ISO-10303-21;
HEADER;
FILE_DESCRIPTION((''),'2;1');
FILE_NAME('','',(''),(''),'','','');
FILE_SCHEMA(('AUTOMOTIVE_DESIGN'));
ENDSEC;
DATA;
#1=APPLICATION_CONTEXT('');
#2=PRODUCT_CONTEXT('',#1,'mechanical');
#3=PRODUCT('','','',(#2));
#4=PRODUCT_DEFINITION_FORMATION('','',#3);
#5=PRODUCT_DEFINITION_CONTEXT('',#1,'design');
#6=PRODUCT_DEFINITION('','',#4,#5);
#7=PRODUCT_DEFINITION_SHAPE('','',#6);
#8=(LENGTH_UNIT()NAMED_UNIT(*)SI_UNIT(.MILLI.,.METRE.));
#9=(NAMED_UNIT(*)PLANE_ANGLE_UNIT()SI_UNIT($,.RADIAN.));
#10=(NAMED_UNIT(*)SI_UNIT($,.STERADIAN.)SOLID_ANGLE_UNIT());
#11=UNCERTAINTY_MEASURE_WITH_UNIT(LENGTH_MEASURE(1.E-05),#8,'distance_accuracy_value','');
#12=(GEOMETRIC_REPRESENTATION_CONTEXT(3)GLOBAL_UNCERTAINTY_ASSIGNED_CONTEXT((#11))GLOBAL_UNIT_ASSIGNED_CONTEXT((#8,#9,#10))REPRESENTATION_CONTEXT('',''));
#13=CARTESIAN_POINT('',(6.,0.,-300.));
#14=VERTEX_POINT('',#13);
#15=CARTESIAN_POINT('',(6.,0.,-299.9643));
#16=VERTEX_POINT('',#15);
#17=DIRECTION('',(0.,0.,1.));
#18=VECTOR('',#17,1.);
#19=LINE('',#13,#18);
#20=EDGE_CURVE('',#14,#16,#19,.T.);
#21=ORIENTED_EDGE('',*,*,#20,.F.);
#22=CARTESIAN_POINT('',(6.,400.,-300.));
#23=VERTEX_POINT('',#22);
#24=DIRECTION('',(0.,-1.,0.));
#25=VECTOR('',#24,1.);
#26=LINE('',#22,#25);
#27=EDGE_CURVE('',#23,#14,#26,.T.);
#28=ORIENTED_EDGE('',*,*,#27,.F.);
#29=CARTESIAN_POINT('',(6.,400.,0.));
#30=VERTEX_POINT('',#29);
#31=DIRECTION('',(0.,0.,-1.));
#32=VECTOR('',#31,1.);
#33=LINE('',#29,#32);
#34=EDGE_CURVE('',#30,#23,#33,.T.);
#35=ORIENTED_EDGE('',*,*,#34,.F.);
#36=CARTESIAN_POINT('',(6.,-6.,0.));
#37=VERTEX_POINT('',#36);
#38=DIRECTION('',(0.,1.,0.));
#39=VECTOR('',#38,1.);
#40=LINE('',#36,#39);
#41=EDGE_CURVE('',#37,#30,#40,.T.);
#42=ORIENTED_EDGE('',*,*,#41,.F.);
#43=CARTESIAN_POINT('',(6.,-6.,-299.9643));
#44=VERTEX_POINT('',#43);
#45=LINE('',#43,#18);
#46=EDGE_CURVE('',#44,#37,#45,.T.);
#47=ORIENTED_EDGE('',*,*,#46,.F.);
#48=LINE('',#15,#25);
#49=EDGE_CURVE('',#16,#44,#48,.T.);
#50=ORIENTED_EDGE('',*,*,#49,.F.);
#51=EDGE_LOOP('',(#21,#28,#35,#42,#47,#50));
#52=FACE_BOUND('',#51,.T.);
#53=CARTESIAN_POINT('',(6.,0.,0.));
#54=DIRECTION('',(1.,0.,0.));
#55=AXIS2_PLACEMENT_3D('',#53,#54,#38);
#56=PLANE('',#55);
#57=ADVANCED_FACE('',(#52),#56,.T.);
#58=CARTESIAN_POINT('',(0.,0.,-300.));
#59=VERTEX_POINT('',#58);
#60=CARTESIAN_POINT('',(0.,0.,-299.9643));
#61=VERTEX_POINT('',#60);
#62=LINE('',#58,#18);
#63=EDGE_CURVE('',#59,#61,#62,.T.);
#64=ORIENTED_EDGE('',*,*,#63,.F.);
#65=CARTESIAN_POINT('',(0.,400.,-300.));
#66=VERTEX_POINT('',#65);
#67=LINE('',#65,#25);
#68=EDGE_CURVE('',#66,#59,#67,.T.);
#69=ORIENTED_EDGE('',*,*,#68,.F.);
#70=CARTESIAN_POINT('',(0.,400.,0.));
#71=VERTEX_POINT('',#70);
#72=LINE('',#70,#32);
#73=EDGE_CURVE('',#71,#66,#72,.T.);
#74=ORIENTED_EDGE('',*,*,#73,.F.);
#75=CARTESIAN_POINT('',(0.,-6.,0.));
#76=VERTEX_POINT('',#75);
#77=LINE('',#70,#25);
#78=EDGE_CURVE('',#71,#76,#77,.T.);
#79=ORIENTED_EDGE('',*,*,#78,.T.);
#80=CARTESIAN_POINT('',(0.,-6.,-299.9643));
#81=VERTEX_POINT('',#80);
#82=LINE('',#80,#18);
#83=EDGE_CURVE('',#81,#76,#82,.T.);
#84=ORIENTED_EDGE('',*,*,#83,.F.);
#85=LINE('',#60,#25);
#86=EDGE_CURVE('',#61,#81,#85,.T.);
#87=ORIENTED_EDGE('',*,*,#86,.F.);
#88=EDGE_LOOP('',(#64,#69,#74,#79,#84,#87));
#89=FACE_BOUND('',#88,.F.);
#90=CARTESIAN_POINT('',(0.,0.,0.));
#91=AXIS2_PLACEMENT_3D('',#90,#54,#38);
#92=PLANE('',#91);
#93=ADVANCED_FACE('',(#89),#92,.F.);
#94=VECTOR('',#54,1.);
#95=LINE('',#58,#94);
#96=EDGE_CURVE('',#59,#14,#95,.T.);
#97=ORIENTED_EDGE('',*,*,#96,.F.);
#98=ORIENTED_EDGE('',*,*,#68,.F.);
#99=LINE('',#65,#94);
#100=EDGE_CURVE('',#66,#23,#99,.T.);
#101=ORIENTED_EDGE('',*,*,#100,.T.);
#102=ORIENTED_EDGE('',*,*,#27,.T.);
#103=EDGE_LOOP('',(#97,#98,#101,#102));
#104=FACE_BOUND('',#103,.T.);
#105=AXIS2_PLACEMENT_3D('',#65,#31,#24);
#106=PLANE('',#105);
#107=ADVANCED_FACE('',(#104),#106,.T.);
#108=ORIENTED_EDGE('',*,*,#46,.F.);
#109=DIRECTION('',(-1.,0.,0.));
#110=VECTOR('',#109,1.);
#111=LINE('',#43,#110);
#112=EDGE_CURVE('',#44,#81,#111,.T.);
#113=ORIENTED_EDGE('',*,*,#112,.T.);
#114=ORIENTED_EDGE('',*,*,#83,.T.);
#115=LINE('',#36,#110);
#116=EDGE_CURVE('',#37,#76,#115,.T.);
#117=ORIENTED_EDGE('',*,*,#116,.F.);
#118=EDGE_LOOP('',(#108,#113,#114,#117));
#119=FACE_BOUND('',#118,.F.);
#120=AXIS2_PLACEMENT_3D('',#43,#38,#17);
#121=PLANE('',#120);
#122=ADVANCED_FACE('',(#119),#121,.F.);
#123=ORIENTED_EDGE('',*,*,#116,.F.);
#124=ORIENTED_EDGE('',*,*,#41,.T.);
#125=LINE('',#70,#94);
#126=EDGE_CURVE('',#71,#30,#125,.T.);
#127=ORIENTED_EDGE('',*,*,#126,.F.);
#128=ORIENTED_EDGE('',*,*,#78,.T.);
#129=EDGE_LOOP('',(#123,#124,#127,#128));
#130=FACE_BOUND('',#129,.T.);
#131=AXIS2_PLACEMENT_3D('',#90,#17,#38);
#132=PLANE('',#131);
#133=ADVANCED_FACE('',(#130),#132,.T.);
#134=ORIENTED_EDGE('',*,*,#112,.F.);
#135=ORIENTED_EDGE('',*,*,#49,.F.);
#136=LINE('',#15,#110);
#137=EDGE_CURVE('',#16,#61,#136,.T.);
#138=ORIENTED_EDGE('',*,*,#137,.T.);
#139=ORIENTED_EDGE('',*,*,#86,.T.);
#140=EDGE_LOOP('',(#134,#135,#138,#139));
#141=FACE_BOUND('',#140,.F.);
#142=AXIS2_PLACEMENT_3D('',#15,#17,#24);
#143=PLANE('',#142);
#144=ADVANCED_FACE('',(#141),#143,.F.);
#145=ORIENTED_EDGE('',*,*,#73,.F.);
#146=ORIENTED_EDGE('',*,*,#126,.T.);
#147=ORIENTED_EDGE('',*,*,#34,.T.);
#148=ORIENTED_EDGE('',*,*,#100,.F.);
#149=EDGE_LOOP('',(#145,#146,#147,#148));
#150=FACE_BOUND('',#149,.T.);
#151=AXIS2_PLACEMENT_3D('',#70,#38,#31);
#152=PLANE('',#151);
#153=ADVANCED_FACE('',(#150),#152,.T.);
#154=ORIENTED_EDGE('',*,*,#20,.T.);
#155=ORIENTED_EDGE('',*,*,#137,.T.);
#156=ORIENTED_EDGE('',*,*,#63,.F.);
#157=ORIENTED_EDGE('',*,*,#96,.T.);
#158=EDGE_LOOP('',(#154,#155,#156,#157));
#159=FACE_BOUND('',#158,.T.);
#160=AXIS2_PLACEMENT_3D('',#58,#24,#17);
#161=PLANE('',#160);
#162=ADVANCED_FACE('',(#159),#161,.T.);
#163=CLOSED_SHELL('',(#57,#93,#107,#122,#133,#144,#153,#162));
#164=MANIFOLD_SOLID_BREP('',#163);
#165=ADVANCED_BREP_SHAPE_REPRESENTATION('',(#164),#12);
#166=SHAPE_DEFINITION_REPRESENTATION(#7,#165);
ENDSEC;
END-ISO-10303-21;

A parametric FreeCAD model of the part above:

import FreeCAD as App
import Part
import Sketcher
from FreeCAD import Vector
Q = App.Units.Quantity


def add_polygon(sketch, points):
    """Adds a closed chain of lines whose ends are joined by coincident constraints."""
    first, n = sketch.GeometryCount, len(points)
    for a, b in zip(points, points[1:] + points[:1]):
        sketch.addGeometry(Part.LineSegment(App.Vector(*a, 0), App.Vector(*b, 0)), False)
    for i in range(n):
        sketch.addConstraint(Sketcher.Constraint("Coincident", first + i, 2, first + (i + 1) % n, 1))

doc = App.newDocument("Part")
params = doc.addObject("Spreadsheet::Sheet", "Params")
for row, (alias, value) in enumerate([
    ("sketch1_width", "400 mm"),
    ("sketch1_height", "300 mm"),
    ("pad1_length", "6 mm"),
    ("sketch2_width", "6 mm"),
    ("pad2_length", "6 mm"),
], start=1):
    params.set(f"A{row}", alias)
    params.set(f"B{row}", "=" + value)
    params.setAlias(f"B{row}", alias)

body = doc.addObject("PartDesign::Body", "Body")

sketch1 = body.newObject("Sketcher::SketchObject", "Sketch")
sketch1.AttachmentSupport = (doc.getObject("YZ_Plane"), [""])
sketch1.MapMode = "FlatFace"
add_polygon(sketch1, [(400, 0), (0, 0), (0, -300), (400, -300)])
sketch1.addConstraint([
    Sketcher.Constraint("Horizontal", 0),
    Sketcher.Constraint("Vertical", 1),
    Sketcher.Constraint("Horizontal", 2),
    Sketcher.Constraint("Vertical", 3),
    Sketcher.Constraint("Coincident", 0, 2, -1, 1),
    Sketcher.Constraint("DistanceX", 0, 2, 0, 1, Q("400 mm")),
    Sketcher.Constraint("DistanceY", 1, 2, 1, 1, Q("300 mm")),
])
sketch1.setExpression("Constraints[9]", "Params.sketch1_width")
sketch1.setExpression("Constraints[10]", "Params.sketch1_height")
pad1 = body.newObject("PartDesign::Pad", "Pad")
pad1.Profile = sketch1
pad1.setExpression("Length", "Params.pad1_length")

sketch2 = body.newObject("Sketcher::SketchObject", "Sketch001")
sketch2.AttachmentSupport = (doc.getObject("YZ_Plane"), [""])
sketch2.MapMode = "FlatFace"
sketch2.AttachmentOffset = App.Placement(Vector(0, 0, 6), App.Rotation())
add_polygon(sketch2, [(0, -299.9643), (0, 0), (-6, 0), (-6, -299.9643)])
sketch2.addConstraint([
    Sketcher.Constraint("Vertical", 0),
    Sketcher.Constraint("Horizontal", 1),
    Sketcher.Constraint("Vertical", 2),
    Sketcher.Constraint("Horizontal", 3),
    Sketcher.Constraint("Coincident", 0, 2, -1, 1),
    Sketcher.Constraint("DistanceX", 1, 2, 1, 1, Q("6 mm")),
    Sketcher.Constraint("DistanceY", 0, 1, 0, 2, Q("299.9643 mm")),
])
sketch2.setExpression("Constraints[9]", "Params.sketch2_width")
pad2 = body.newObject("PartDesign::Pad", "Pad001")
pad2.Profile = sketch2
pad2.setExpression("Length", "Params.pad2_length")
pad2.Reversed = True

doc.recompute()
